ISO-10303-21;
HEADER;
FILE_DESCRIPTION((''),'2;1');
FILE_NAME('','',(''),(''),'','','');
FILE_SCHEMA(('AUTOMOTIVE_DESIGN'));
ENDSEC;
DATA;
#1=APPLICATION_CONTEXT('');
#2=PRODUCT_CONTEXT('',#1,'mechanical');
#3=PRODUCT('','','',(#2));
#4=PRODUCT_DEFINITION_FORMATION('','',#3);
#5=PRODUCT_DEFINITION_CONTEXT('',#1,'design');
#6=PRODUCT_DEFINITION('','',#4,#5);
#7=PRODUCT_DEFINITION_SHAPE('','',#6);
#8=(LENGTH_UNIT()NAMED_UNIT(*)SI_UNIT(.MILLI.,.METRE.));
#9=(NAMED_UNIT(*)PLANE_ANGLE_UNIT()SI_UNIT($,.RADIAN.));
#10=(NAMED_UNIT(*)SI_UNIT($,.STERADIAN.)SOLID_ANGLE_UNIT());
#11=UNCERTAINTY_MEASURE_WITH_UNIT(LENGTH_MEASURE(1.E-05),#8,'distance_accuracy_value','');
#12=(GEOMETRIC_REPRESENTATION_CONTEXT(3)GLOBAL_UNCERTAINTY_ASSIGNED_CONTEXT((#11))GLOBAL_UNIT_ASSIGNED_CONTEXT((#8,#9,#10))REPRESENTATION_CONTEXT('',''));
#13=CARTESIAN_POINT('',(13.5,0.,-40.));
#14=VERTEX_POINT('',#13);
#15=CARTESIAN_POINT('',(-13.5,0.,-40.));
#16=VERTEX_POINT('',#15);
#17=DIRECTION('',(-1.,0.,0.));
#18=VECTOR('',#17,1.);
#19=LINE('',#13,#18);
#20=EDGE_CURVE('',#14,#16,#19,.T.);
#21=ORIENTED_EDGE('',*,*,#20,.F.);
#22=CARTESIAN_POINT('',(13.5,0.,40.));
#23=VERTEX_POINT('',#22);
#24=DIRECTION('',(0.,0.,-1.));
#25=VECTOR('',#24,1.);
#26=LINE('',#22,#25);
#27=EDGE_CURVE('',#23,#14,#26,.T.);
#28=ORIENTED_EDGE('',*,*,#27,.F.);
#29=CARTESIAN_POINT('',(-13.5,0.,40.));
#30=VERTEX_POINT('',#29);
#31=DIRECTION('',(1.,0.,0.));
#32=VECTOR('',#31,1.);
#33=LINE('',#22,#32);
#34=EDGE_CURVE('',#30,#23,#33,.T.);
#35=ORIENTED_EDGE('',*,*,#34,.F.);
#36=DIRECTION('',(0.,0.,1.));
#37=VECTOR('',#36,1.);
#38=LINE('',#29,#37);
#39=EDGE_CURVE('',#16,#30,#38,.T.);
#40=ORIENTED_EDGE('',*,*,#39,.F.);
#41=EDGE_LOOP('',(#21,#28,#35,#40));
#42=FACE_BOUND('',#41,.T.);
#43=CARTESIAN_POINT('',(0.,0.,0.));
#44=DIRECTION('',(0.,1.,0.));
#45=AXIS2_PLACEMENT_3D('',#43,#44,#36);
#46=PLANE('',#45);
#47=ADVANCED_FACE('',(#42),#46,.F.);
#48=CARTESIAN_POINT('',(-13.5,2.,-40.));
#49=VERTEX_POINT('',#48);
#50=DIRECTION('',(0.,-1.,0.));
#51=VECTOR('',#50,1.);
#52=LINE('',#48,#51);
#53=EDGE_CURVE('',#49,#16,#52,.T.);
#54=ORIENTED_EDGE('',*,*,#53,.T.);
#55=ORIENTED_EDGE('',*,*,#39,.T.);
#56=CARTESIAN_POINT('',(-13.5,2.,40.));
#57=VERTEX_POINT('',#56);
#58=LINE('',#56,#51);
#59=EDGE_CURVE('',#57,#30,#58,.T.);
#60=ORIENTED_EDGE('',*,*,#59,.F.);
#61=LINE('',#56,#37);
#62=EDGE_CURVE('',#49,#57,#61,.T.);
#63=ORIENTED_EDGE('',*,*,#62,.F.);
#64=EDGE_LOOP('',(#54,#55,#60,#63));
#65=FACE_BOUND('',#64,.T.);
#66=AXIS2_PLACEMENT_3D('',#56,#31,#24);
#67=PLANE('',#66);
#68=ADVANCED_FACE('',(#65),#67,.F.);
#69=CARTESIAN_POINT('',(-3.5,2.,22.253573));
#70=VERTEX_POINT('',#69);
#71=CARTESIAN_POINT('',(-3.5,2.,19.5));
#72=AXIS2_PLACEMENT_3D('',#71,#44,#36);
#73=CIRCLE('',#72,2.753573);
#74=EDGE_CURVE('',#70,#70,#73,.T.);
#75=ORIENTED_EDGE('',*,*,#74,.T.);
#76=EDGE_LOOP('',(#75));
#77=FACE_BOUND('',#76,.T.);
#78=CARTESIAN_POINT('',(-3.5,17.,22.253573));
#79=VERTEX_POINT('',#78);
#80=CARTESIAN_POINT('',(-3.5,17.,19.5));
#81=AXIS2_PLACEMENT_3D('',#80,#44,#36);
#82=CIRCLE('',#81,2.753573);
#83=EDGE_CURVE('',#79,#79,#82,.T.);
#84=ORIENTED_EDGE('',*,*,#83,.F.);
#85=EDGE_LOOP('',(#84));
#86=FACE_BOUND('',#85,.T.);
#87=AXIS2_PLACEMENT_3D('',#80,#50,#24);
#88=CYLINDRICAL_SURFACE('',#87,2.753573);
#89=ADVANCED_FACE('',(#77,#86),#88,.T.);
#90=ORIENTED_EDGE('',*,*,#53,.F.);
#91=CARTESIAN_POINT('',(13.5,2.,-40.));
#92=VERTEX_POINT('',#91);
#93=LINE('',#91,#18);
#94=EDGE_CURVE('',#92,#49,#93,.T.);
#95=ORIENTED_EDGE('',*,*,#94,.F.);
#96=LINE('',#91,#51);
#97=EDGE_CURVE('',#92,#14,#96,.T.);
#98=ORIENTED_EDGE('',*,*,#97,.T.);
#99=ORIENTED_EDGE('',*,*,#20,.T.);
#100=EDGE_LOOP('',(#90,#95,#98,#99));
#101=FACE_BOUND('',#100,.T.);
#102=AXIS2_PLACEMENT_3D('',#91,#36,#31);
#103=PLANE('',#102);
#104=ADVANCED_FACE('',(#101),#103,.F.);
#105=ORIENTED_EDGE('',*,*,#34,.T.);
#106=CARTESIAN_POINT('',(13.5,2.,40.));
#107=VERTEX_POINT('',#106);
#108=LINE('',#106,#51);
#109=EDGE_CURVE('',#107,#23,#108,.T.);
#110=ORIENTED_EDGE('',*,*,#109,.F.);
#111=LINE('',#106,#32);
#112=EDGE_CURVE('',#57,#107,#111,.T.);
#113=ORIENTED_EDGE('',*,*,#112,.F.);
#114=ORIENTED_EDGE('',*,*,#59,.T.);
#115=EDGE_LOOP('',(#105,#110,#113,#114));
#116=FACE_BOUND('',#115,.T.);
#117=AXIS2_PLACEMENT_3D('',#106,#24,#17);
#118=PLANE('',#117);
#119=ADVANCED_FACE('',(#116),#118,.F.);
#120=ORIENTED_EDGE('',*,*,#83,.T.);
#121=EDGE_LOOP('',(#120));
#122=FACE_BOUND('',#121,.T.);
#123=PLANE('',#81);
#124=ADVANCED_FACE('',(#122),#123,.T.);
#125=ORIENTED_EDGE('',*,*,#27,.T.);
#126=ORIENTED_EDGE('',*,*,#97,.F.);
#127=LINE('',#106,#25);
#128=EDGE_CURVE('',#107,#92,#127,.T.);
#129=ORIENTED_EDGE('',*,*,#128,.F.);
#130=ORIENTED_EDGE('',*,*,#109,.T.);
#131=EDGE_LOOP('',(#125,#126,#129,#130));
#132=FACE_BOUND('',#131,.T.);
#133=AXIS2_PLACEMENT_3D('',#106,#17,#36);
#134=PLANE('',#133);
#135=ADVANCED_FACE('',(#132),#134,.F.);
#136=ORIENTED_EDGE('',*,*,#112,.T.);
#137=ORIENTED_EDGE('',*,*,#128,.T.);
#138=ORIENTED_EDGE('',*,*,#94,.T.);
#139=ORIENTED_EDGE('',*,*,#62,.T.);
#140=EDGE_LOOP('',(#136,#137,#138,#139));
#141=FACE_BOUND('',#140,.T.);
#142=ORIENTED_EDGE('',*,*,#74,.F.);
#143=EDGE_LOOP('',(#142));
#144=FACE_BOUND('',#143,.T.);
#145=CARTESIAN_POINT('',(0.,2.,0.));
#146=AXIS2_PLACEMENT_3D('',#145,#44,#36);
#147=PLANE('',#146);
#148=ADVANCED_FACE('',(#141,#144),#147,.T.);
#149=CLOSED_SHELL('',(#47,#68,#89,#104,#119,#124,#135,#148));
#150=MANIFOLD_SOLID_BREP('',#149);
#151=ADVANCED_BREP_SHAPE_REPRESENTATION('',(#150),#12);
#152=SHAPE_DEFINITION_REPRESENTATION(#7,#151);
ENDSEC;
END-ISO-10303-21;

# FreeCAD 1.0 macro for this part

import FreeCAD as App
import Part
import Sketcher

doc = App.newDocument("Part")
body = doc.addObject("PartDesign::Body", "Body")

sketch1 = doc.addObject("Sketcher::SketchObject", "Sketch")
body.addObject(sketch1)
sketch1.AttachmentSupport = (doc.XZ_Plane, [""])
sketch1.MapMode = "FlatFace"
sketch1.addGeometry(Part.LineSegment(App.Vector(-14, -40, 0), App.Vector(-14, 40, 0)), False)
sketch1.addGeometry(Part.LineSegment(App.Vector(-14, 40, 0), App.Vector(14, 40, 0)), False)
sketch1.addGeometry(Part.LineSegment(App.Vector(14, 40, 0), App.Vector(14, -40, 0)), False)
sketch1.addGeometry(Part.LineSegment(App.Vector(14, -40, 0), App.Vector(-14, -40, 0)), False)
sketch1.addConstraint(Sketcher.Constraint("Coincident", 0, 2, 1, 1))
sketch1.addConstraint(Sketcher.Constraint("Coincident", 1, 2, 2, 1))
sketch1.addConstraint(Sketcher.Constraint("Coincident", 2, 2, 3, 1))
sketch1.addConstraint(Sketcher.Constraint("Coincident", 3, 2, 0, 1))
sketch1.addConstraint(Sketcher.Constraint("Vertical", 0))
sketch1.addConstraint(Sketcher.Constraint("Horizontal", 1))
sketch1.addConstraint(Sketcher.Constraint("Vertical", 2))
sketch1.addConstraint(Sketcher.Constraint("Horizontal", 3))
sketch1.addConstraint(Sketcher.Constraint("Symmetric", 0, 2, 2, 2, -1, 1))
sketch1.addConstraint(Sketcher.Constraint("DistanceX", 1, 1, 1, 2, 27.0))
sketch1.addConstraint(Sketcher.Constraint("DistanceY", 0, 1, 0, 2, 80.0))
pad1 = doc.addObject("PartDesign::Pad", "Pad")
body.addObject(pad1)
pad1.Profile = sketch1
pad1.Length = 2
pad1.Reversed = True

sketch2 = doc.addObject("Sketcher::SketchObject", "Sketch001")
body.addObject(sketch2)
sketch2.AttachmentSupport = (doc.XZ_Plane, [""])
sketch2.MapMode = "FlatFace"
sketch2.AttachmentOffset = App.Placement(App.Vector(0, 0, -2), App.Rotation())
sketch2.addGeometry(Part.Circle(App.Vector(-3.5, 19.5, 0), App.Vector(0, 0, 1), 2.8), False)
sketch2.addConstraint(Sketcher.Constraint("DistanceX", 0, 3, -1, 1, 3.5))
sketch2.addConstraint(Sketcher.Constraint("DistanceY", -1, 1, 0, 3, 19.5))
sketch2.addConstraint(Sketcher.Constraint("Diameter", 0, 5.507146))
pad2 = doc.addObject("PartDesign::Pad", "Pad001")
body.addObject(pad2)
pad2.Profile = sketch2
pad2.Length = 15
pad2.Reversed = True

doc.recompute()
